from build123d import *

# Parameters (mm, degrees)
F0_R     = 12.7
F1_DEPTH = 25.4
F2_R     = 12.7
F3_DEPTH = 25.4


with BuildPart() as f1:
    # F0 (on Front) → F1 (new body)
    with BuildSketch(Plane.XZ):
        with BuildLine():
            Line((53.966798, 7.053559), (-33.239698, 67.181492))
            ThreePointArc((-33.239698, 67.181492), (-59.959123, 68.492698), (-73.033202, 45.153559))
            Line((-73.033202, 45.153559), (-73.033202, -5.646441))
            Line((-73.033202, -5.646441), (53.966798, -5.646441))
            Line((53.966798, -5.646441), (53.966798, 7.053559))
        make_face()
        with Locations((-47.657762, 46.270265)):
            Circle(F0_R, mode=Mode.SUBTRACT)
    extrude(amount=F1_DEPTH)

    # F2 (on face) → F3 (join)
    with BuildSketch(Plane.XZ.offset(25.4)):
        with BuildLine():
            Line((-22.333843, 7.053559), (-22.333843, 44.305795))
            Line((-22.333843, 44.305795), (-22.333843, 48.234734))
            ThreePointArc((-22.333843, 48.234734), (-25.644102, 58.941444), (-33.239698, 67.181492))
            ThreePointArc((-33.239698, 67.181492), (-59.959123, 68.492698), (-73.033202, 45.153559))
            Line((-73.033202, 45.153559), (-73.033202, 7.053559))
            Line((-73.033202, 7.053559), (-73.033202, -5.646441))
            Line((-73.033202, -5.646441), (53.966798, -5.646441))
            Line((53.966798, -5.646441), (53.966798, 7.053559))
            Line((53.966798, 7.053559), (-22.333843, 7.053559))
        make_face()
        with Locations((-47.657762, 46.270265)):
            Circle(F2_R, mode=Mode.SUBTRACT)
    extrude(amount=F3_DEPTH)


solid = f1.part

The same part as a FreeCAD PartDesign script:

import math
import FreeCAD as App
import Part
import Sketcher
Q = App.Units.Quantity

doc = App.newDocument("Part")
body = doc.addObject("PartDesign::Body", "Body")

sketch1 = body.newObject("Sketcher::SketchObject", "Sketch")
sketch1.AttachmentSupport = (doc.getObject("XZ_Plane"), [""])
sketch1.MapMode = "FlatFace"
sketch1.addGeometry([
    Part.LineSegment(App.Vector(54, 7, 0), App.Vector(-33, 67, 0)),
    Part.ArcOfCircle(Part.Circle(App.Vector(-48, 46, 0), App.Vector(0, 0, 1), 25), math.radians(55), math.radians(183)),
    Part.LineSegment(App.Vector(-73, 45, 0), App.Vector(-73, -6, 0)),
    Part.LineSegment(App.Vector(-73, -6, 0), App.Vector(54, -6, 0)),
    Part.LineSegment(App.Vector(54, -6, 0), App.Vector(54, 7, 0)),
    Part.Circle(App.Vector(-48, 46, 0), App.Vector(0, 0, 1), 13),
], False)
sketch1.addConstraint([
    Sketcher.Constraint("Tangent", 0, 2, 1, 1),
    Sketcher.Constraint("Coincident", 1, 2, 2, 1),
    Sketcher.Constraint("Coincident", 2, 2, 3, 1),
    Sketcher.Constraint("Coincident", 3, 2, 4, 1),
    Sketcher.Constraint("Coincident", 4, 2, 0, 1),
    Sketcher.Constraint("Vertical", 2),
    Sketcher.Constraint("Horizontal", 3),
    Sketcher.Constraint("Vertical", 4),
    Sketcher.Constraint("Coincident", 5, 3, 1, 3),
    Sketcher.Constraint("Diameter", 5, Q("1 in")),
    Sketcher.Constraint("Radius", 1, Q("1 in")),
    Sketcher.Constraint("DistanceX", 3, 1, 3, 2, Q("5 in")),
    Sketcher.Constraint("DistanceY", 2, 2, 2, 1, Q("2 in")),
    Sketcher.Constraint("DistanceY", 4, 1, 4, 2, Q("0.5 in")),
    Sketcher.Constraint("DistanceX", 5, 3, -1, 1, Q("47.657762 mm")),
    Sketcher.Constraint("DistanceY", -1, 1, 1, 2, Q("45.153559 mm")),
    Sketcher.Constraint("DistanceX", 1, 2, 1, 3, Q("25.37544 mm")),
])
pad1 = body.newObject("PartDesign::Pad", "Pad")
pad1.Profile = sketch1
pad1.Length = Q("1 in")

sketch2 = body.newObject("Sketcher::SketchObject", "Sketch001")
sketch2.AttachmentSupport = (doc.getObject("XZ_Plane"), [""])
sketch2.MapMode = "FlatFace"
sketch2.AttachmentOffset = App.Placement(App.Vector(0, 0, 1 * 25.4), App.Rotation())
sketch2.addGeometry([
    Part.LineSegment(App.Vector(-22, 7, 0), App.Vector(-22, 48, 0)),
    Part.ArcOfCircle(Part.Circle(App.Vector(-48, 46, 0), App.Vector(0, 0, 1), 25), math.radians(4), math.radians(55)),
    Part.ArcOfCircle(Part.Circle(App.Vector(-48, 46, 0), App.Vector(0, 0, 1), 25), math.radians(55), math.radians(183)),
    Part.LineSegment(App.Vector(-73, 45, 0), App.Vector(-73, -6, 0)),
    Part.LineSegment(App.Vector(-73, -6, 0), App.Vector(54, -6, 0)),
    Part.LineSegment(App.Vector(54, -6, 0), App.Vector(54, 7, 0)),
    Part.LineSegment(App.Vector(54, 7, 0), App.Vector(-22, 7, 0)),
    Part.Circle(App.Vector(-48, 46, 0), App.Vector(0, 0, 1), 13),
], False)
sketch2.addConstraint([
    Sketcher.Constraint("Coincident", 0, 2, 1, 1),
    Sketcher.Constraint("Tangent", 1, 2, 2, 1),
    Sketcher.Constraint("Coincident", 2, 2, 3, 1),
    Sketcher.Constraint("Coincident", 3, 2, 4, 1),
    Sketcher.Constraint("Coincident", 4, 2, 5, 1),
    Sketcher.Constraint("Coincident", 5, 2, 6, 1),
    Sketcher.Constraint("Coincident", 6, 2, 0, 1),
    Sketcher.Constraint("Vertical", 0),
    Sketcher.Constraint("Vertical", 3),
    Sketcher.Constraint("Horizontal", 4),
    Sketcher.Constraint("Vertical", 5),
    Sketcher.Constraint("Horizontal", 6),
    Sketcher.Constraint("Coincident", 7, 3, 1, 3),
    Sketcher.Constraint("Equal", 1, 2),
    Sketcher.Constraint("Diameter", 7, Q("1 in")),
    Sketcher.Constraint("Radius", 1, Q("1 in")),
    Sketcher.Constraint("DistanceX", 4, 1, 4, 2, Q("5 in")),
    Sketcher.Constraint("DistanceY", 3, 2, 3, 1, Q("2 in")),
    Sketcher.Constraint("DistanceY", 5, 1, 5, 2, Q("0.5 in")),
    Sketcher.Constraint("DistanceX", 6, 2, 6, 1, Q("76.300641 mm")),
    Sketcher.Constraint("DistanceX", 1, 2, -1, 1, Q("33.239698 mm")),
    Sketcher.Constraint("DistanceY", 0, 1, 0, 2, Q("41.181175 mm")),
    Sketcher.Constraint("DistanceX", 1, 3, -1, 1, Q("47.657761 mm")),
    Sketcher.Constraint("DistanceY", -1, 1, 1, 2, Q("67.181492 mm")),
])
pad2 = body.newObject("PartDesign::Pad", "Pad001")
pad2.Profile = sketch2
pad2.Length = Q("1 in")

doc.recompute()
